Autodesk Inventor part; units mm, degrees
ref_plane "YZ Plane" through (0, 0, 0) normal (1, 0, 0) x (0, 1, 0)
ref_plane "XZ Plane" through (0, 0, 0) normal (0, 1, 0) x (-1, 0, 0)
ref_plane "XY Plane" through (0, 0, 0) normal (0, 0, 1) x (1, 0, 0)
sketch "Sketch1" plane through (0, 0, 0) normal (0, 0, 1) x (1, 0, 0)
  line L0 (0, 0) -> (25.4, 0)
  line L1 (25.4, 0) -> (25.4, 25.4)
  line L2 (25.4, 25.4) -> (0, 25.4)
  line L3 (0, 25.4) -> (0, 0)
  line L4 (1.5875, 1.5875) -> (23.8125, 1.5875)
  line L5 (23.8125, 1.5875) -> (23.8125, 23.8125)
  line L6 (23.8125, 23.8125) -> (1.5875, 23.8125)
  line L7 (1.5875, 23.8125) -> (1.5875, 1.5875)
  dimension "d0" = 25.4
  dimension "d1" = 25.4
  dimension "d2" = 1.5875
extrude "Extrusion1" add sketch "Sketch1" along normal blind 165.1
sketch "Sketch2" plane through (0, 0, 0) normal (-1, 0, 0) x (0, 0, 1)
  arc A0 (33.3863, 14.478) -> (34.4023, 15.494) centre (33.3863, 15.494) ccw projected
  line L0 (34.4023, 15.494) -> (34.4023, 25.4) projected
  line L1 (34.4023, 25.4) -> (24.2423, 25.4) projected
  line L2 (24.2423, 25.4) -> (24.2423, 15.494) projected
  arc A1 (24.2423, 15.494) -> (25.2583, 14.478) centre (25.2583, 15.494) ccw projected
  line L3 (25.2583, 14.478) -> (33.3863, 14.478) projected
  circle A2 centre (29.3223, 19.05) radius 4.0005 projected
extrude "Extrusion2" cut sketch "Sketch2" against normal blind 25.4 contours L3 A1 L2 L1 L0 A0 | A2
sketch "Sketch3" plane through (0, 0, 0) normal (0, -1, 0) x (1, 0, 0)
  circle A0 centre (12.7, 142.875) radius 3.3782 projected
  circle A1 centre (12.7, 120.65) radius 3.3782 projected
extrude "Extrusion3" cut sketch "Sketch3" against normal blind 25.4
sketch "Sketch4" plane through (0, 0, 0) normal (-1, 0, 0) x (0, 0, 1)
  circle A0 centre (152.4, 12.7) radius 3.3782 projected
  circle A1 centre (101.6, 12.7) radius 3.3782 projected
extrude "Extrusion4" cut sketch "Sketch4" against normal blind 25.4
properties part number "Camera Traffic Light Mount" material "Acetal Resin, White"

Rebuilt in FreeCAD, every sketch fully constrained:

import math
import FreeCAD as App
import Part
import Sketcher
Q = App.Units.Quantity

doc = App.newDocument("Part")
body = doc.addObject("PartDesign::Body", "Body")

sketch1 = body.newObject("Sketcher::SketchObject", "Sketch")
sketch1.AttachmentSupport = (doc.getObject("XY_Plane"), [""])
sketch1.MapMode = "FlatFace"
sketch1.addGeometry([
    Part.LineSegment(App.Vector(0, 25.4, 0), App.Vector(0, 0, 0)),
    Part.LineSegment(App.Vector(0, 0, 0), App.Vector(25.4, 0, 0)),
    Part.LineSegment(App.Vector(25.4, 0, 0), App.Vector(25.4, 25.4, 0)),
    Part.LineSegment(App.Vector(25.4, 25.4, 0), App.Vector(0, 25.4, 0)),
    Part.LineSegment(App.Vector(23.8125, 1.5875, 0), App.Vector(1.5875, 1.5875, 0)),
    Part.LineSegment(App.Vector(1.5875, 1.5875, 0), App.Vector(1.5875, 23.8125, 0)),
    Part.LineSegment(App.Vector(1.5875, 23.8125, 0), App.Vector(23.8125, 23.8125, 0)),
    Part.LineSegment(App.Vector(23.8125, 23.8125, 0), App.Vector(23.8125, 1.5875, 0)),
], False)
sketch1.addConstraint([
    Sketcher.Constraint("Coincident", 0, 2, 1, 1),
    Sketcher.Constraint("Coincident", 1, 2, 2, 1),
    Sketcher.Constraint("Coincident", 2, 2, 3, 1),
    Sketcher.Constraint("Coincident", 3, 2, 0, 1),
    Sketcher.Constraint("Coincident", 4, 2, 5, 1),
    Sketcher.Constraint("Coincident", 5, 2, 6, 1),
    Sketcher.Constraint("Coincident", 6, 2, 7, 1),
    Sketcher.Constraint("Coincident", 7, 2, 4, 1),
    Sketcher.Constraint("Vertical", 0),
    Sketcher.Constraint("Horizontal", 1),
    Sketcher.Constraint("Vertical", 2),
    Sketcher.Constraint("Horizontal", 3),
    Sketcher.Constraint("Horizontal", 4),
    Sketcher.Constraint("Vertical", 5),
    Sketcher.Constraint("Horizontal", 6),
    Sketcher.Constraint("Vertical", 7),
    Sketcher.Constraint("Coincident", 0, 2, -1, 1),
    Sketcher.Constraint("Equal", 3, 0),
    Sketcher.Constraint("Equal", 6, 5),
    Sketcher.Constraint("DistanceX", 1, 1, 1, 2, Q("1 in")),
    Sketcher.Constraint("DistanceX", -1, 1, 4, 2, Q("0.0625 in")),
    Sketcher.Constraint("DistanceY", -1, 1, 4, 2, Q("0.0625 in")),
    Sketcher.Constraint("DistanceY", 5, 2, 3, 2, Q("0.0625 in")),
])
pad1 = body.newObject("PartDesign::Pad", "Pad")
pad1.Profile = sketch1
pad1.Length = Q("6.5 in")

sketch2 = body.newObject("Sketcher::SketchObject", "Sketch001")
sketch2.AttachmentSupport = (doc.getObject("YZ_Plane"), [""])
sketch2.MapMode = "FlatFace"
sketch2.addGeometry([
    Part.LineSegment(App.Vector(14.478, 25.2583, 0), App.Vector(14.478, 33.3863, 0)),
    Part.ArcOfCircle(Part.Circle(App.Vector(15.494, 33.3863, 0), App.Vector(0, 0, 1), 1.016), math.radians(90), math.radians(180)),
    Part.LineSegment(App.Vector(15.494, 34.4023, 0), App.Vector(25.4, 34.4023, 0)),
    Part.LineSegment(App.Vector(25.4, 34.4023, 0), App.Vector(25.4, 24.2423, 0)),
    Part.LineSegment(App.Vector(25.4, 24.2423, 0), App.Vector(15.494, 24.2423, 0)),
    Part.ArcOfCircle(Part.Circle(App.Vector(15.494, 25.2583, 0), App.Vector(0, 0, 1), 1.016), math.radians(180), math.radians(270)),
], False)
sketch2.addConstraint([
    Sketcher.Constraint("Tangent", 0, 2, 1, 2),
    Sketcher.Constraint("Tangent", 1, 1, 2, 1),
    Sketcher.Constraint("Coincident", 2, 2, 3, 1),
    Sketcher.Constraint("Coincident", 3, 2, 4, 1),
    Sketcher.Constraint("Tangent", 4, 2, 5, 2),
    Sketcher.Constraint("Tangent", 5, 1, 0, 1),
    Sketcher.Constraint("Vertical", 0),
    Sketcher.Constraint("Horizontal", 2),
    Sketcher.Constraint("Vertical", 3),
    Sketcher.Constraint("Horizontal", 4),
    Sketcher.Constraint("Equal", 1, 5),
    Sketcher.Constraint("Radius", 1, Q("0.04 in")),
    Sketcher.Constraint("DistanceY", 3, 2, 3, 1, Q("0.4 in")),
    Sketcher.Constraint("DistanceX", -1, 1, 2, 2, Q("1 in")),
    Sketcher.Constraint("DistanceX", 2, 1, 2, 2, Q("0.39 in")),
    Sketcher.Constraint("DistanceY", -1, 1, 1, 3, 33.3863),
])
pocket1 = body.newObject("PartDesign::Pocket", "Pocket")
pocket1.Profile = sketch2
pocket1.Length = Q("1 in")
pocket1.Reversed = True

sketch3 = body.newObject("Sketcher::SketchObject", "Sketch002")
sketch3.AttachmentSupport = (doc.getObject("XZ_Plane"), [""])
sketch3.MapMode = "FlatFace"
sketch3.addGeometry([
    Part.Circle(App.Vector(12.7, 142.875, 0), App.Vector(0, 0, 1), 3.3782),
    Part.Circle(App.Vector(12.7, 120.65, 0), App.Vector(0, 0, 1), 3.3782),
], False)
sketch3.addConstraint([
    Sketcher.Constraint("Equal", 0, 1),
    Sketcher.Constraint("Vertical", 0, 3, 1, 3),
    Sketcher.Constraint("Diameter", 0, Q("0.266 in")),
    Sketcher.Constraint("DistanceX", -1, 1, 0, 3, Q("0.5 in")),
    Sketcher.Constraint("DistanceY", -1, 1, 1, 3, Q("4.75 in")),
    Sketcher.Constraint("DistanceY", -1, 1, 0, 3, Q("5.625 in")),
])
pocket2 = body.newObject("PartDesign::Pocket", "Pocket001")
pocket2.Profile = sketch3
pocket2.Length = Q("1 in")

sketch4 = body.newObject("Sketcher::SketchObject", "Sketch003")
sketch4.AttachmentSupport = (doc.getObject("YZ_Plane"), [""])
sketch4.MapMode = "FlatFace"
sketch4.addGeometry([
    Part.Circle(App.Vector(12.7, 152.4, 0), App.Vector(0, 0, 1), 3.3782),
    Part.Circle(App.Vector(12.7, 101.6, 0), App.Vector(0, 0, 1), 3.3782),
], False)
sketch4.addConstraint([
    Sketcher.Constraint("Equal", 0, 1),
    Sketcher.Constraint("Vertical", 0, 3, 1, 3),
    Sketcher.Constraint("Diameter", 0, Q("0.266 in")),
    Sketcher.Constraint("DistanceY", -1, 1, 0, 3, Q("6 in")),
    Sketcher.Constraint("DistanceY", -1, 1, 1, 3, Q("4 in")),
    Sketcher.Constraint("DistanceX", -1, 1, 0, 3, Q("0.5 in")),
])
pocket3 = body.newObject("PartDesign::Pocket", "Pocket002")
pocket3.Profile = sketch4
pocket3.Length = Q("1 in")
pocket3.Reversed = True

doc.recompute()
